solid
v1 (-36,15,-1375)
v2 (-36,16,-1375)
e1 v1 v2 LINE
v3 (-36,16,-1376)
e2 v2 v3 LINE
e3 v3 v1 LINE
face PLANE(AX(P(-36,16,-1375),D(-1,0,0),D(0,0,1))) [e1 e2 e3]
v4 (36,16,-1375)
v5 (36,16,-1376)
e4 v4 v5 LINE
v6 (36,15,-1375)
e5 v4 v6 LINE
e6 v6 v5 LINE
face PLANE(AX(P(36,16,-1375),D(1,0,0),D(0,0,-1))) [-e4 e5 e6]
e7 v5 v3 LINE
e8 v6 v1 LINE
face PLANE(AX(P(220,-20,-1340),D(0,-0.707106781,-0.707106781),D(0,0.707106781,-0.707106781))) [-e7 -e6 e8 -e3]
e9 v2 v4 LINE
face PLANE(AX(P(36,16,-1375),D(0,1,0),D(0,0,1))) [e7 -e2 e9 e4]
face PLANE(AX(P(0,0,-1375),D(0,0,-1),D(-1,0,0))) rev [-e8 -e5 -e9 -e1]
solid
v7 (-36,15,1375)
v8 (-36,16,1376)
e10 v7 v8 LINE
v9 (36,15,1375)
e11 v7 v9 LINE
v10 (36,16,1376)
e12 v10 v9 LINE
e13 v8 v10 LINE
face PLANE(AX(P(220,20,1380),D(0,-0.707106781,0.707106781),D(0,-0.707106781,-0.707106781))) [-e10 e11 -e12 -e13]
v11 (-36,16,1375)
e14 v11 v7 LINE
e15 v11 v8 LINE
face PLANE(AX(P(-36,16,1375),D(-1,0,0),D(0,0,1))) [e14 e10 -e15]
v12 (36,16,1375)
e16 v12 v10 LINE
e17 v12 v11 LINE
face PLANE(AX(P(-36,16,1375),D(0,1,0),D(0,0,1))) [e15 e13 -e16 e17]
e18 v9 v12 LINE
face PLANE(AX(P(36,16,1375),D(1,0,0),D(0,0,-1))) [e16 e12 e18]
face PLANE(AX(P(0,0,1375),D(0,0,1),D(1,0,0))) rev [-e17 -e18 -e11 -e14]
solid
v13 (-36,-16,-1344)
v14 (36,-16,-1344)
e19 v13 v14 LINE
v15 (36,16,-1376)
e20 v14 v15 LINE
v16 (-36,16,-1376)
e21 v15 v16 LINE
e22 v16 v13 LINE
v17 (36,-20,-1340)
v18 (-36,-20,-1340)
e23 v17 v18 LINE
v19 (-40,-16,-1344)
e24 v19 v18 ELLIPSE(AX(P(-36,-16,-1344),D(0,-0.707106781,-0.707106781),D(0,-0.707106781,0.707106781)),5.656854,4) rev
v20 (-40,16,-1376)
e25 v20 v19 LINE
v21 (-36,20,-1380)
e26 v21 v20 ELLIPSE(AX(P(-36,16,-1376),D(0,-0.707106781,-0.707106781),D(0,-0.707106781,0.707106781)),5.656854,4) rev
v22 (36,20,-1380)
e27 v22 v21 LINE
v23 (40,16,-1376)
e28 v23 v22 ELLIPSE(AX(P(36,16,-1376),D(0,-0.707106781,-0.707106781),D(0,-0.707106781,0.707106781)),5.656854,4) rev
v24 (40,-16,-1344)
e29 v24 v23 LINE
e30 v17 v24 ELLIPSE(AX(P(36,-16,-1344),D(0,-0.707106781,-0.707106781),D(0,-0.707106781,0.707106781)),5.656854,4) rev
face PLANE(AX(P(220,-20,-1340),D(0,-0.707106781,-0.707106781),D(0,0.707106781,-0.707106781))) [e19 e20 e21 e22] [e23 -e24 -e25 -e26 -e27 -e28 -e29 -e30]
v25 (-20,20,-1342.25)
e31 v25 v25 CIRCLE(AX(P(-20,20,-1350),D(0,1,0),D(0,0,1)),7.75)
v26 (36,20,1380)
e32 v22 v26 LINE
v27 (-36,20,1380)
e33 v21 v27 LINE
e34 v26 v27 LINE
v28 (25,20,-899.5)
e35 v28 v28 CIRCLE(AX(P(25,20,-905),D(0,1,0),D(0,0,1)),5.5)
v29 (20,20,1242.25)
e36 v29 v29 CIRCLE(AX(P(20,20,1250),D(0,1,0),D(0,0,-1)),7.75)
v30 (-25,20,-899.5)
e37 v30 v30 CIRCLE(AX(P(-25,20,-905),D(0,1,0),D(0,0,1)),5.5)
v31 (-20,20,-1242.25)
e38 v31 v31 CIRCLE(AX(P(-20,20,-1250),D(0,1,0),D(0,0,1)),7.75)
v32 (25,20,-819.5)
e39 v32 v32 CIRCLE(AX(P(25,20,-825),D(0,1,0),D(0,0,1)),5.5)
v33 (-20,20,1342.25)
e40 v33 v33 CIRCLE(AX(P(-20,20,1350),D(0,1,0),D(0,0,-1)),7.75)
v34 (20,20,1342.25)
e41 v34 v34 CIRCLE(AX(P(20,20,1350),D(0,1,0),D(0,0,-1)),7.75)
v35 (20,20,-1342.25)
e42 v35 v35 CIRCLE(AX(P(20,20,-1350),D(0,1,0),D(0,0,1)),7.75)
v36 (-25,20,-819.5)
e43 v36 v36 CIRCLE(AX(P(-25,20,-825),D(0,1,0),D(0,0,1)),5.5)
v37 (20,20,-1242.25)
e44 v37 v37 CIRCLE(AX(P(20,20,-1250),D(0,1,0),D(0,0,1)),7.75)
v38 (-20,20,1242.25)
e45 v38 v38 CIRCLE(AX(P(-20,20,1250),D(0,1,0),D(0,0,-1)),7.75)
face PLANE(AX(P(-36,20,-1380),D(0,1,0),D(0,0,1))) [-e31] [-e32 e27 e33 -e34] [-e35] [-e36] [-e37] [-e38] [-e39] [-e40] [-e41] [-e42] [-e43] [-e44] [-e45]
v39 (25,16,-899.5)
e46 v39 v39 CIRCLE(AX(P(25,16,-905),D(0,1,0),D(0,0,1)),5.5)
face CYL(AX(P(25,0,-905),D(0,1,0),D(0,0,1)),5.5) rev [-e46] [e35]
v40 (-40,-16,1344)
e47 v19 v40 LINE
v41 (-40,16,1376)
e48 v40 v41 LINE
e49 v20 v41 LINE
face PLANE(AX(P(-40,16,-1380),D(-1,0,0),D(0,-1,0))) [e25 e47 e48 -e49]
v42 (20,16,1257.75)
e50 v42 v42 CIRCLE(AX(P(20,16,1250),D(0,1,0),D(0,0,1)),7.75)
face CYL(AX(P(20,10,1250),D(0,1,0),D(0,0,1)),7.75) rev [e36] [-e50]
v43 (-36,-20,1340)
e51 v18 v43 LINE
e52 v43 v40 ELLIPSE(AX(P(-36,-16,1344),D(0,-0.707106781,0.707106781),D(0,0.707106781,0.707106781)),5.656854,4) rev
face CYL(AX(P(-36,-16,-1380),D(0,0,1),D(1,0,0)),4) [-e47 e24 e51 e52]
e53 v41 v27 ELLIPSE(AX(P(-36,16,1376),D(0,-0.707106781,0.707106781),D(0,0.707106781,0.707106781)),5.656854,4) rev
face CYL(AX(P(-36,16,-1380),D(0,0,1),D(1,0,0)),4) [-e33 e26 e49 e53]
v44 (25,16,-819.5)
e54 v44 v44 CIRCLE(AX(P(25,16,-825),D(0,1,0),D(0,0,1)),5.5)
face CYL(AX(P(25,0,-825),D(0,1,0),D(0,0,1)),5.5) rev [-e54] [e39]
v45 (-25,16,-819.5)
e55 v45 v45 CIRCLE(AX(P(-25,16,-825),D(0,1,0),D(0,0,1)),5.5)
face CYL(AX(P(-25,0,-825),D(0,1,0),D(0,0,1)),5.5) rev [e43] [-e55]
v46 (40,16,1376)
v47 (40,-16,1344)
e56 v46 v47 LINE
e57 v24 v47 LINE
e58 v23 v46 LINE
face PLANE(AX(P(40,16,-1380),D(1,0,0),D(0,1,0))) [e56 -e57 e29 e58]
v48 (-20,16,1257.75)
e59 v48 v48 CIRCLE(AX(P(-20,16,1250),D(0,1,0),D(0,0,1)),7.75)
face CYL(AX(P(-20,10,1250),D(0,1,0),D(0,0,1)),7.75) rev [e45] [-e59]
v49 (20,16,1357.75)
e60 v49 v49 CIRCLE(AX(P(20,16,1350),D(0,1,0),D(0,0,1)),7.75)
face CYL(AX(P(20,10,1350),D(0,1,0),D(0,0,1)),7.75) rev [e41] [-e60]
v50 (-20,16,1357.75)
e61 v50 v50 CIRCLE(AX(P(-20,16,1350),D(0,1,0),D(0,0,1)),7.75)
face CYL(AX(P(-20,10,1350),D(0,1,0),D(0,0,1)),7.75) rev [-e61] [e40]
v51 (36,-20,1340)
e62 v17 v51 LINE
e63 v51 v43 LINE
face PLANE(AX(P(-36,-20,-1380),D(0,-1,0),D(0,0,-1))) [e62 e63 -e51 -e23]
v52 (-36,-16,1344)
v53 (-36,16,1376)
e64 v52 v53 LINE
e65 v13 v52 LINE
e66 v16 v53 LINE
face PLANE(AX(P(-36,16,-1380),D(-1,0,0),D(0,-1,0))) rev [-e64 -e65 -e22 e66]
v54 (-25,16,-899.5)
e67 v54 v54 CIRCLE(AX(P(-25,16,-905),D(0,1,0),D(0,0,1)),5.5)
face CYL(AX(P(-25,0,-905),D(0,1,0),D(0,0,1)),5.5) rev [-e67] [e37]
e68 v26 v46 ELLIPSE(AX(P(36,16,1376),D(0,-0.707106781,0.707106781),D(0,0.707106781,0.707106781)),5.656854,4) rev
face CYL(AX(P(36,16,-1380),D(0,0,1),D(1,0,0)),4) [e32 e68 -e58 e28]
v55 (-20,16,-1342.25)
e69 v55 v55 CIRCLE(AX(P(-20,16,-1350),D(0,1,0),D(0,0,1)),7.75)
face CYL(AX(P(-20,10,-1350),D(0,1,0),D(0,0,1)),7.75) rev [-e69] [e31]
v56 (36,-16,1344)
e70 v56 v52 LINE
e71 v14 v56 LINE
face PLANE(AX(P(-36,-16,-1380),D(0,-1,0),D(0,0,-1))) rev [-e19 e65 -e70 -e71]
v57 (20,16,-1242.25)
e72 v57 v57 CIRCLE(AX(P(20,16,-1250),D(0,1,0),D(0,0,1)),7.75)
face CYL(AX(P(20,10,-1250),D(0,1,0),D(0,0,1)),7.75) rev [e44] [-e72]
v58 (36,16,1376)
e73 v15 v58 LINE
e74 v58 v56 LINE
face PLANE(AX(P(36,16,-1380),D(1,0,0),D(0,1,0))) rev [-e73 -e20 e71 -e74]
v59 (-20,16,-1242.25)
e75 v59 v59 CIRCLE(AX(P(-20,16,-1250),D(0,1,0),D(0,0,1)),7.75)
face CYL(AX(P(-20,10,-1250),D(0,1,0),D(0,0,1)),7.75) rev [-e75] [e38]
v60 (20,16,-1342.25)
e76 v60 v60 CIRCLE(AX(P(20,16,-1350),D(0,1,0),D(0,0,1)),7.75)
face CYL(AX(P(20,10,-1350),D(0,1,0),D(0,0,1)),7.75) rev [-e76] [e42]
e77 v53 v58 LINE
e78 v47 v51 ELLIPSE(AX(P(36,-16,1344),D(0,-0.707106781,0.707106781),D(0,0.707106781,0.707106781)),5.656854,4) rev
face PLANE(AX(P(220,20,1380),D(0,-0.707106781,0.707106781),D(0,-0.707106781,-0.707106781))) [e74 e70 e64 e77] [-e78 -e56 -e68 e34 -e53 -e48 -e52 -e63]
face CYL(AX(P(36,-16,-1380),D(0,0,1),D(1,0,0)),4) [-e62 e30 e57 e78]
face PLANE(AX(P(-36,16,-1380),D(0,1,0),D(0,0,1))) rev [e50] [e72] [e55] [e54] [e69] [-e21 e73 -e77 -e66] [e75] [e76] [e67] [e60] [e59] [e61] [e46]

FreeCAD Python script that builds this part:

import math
import FreeCAD as App
import Part
import Sketcher
Q = App.Units.Quantity


def add_polygon(sketch, points):
    """Adds a closed chain of lines whose ends are joined by coincident constraints."""
    first, n = sketch.GeometryCount, len(points)
    for a, b in zip(points, points[1:] + points[:1]):
        sketch.addGeometry(Part.LineSegment(App.Vector(*a, 0), App.Vector(*b, 0)), False)
    for i in range(n):
        sketch.addConstraint(Sketcher.Constraint("Coincident", first + i, 2, first + (i + 1) % n, 1))

doc = App.newDocument("Part")
params = doc.addObject("Spreadsheet::Sheet", "Params")
for row, (alias, value) in enumerate([
    ("sketch1_radius", "4 mm"),
    ("sketch1_width", "72 mm"),
    ("sketch1_height", "32 mm"),
    ("pad1_length", "1380 mm"),
    ("pad1_length2", "1380 mm"),
    ("sketch2_diameter", "15.5 mm"),
    ("pocket1_length", "10 mm"),
    ("sketch3_diameter", "11 mm"),
    ("pocket2_length", "20 mm"),
    ("sketch4_width", "72 mm"),
    ("sketch4_height", "32 mm"),
    ("pad2_length", "5 mm"),
    ("sketch5_width", "72 mm"),
    ("sketch5_height", "32 mm"),
    ("pad3_length", "5 mm"),
    ("sketch6_width", "40 mm"),
    ("pad4_length", "220 mm"),
    ("pad4_length2", "290 mm"),
], start=1):
    params.set(f"A{row}", alias)
    params.set(f"B{row}", "=" + value)
    params.setAlias(f"B{row}", alias)

body = doc.addObject("PartDesign::Body", "Body")

sketch1 = body.newObject("Sketcher::SketchObject", "Sketch")
sketch1.AttachmentSupport = (doc.getObject("XY_Plane"), [""])
sketch1.MapMode = "FlatFace"
sketch1.addGeometry(Part.LineSegment(App.Vector(36, 20, 0), App.Vector(-36, 20, 0)), False)
sketch1.addGeometry(Part.ArcOfCircle(Part.Circle(App.Vector(-36, 16, 0), App.Vector(0, 0, 1), 4), math.radians(90), math.radians(180)), False)
sketch1.addGeometry(Part.LineSegment(App.Vector(-40, 16, 0), App.Vector(-40, -16, 0)), False)
sketch1.addGeometry(Part.ArcOfCircle(Part.Circle(App.Vector(-36, -16, 0), App.Vector(0, 0, 1), 4), math.radians(180), math.radians(270)), False)
sketch1.addGeometry(Part.LineSegment(App.Vector(-36, -20, 0), App.Vector(36, -20, 0)), False)
sketch1.addGeometry(Part.ArcOfCircle(Part.Circle(App.Vector(36, -16, 0), App.Vector(0, 0, 1), 4), math.radians(-90), math.radians(0)), False)
sketch1.addGeometry(Part.LineSegment(App.Vector(40, -16, 0), App.Vector(40, 16, 0)), False)
sketch1.addGeometry(Part.ArcOfCircle(Part.Circle(App.Vector(36, 16, 0), App.Vector(0, 0, 1), 4), math.radians(0), math.radians(90)), False)
add_polygon(sketch1, [(-36, -16), (-36, 16), (36, 16), (36, -16)])
sketch1.addConstraint([
    Sketcher.Constraint("Tangent", 0, 2, 1, 1),
    Sketcher.Constraint("Tangent", 1, 2, 2, 1),
    Sketcher.Constraint("Tangent", 2, 2, 3, 1),
    Sketcher.Constraint("Tangent", 3, 2, 4, 1),
    Sketcher.Constraint("Tangent", 4, 2, 5, 1),
    Sketcher.Constraint("Tangent", 5, 2, 6, 1),
    Sketcher.Constraint("Tangent", 6, 2, 7, 1),
    Sketcher.Constraint("Tangent", 7, 2, 0, 1),
    Sketcher.Constraint("Horizontal", 0),
    Sketcher.Constraint("Vertical", 2),
    Sketcher.Constraint("Horizontal", 4),
    Sketcher.Constraint("Vertical", 6),
    Sketcher.Constraint("Vertical", 8),
    Sketcher.Constraint("Horizontal", 9),
    Sketcher.Constraint("Vertical", 10),
    Sketcher.Constraint("Horizontal", 11),
    Sketcher.Constraint("Coincident", 8, 2, 1, 3),
    Sketcher.Constraint("Coincident", 9, 2, 7, 3),
    Sketcher.Constraint("Coincident", 10, 2, 5, 3),
    Sketcher.Constraint("Equal", 1, 3),
    Sketcher.Constraint("Symmetric", 1, 3, 5, 3, -1, 1),
    Sketcher.Constraint("Radius", 1, Q("4 mm")),
    Sketcher.Constraint("DistanceX", 0, 2, 0, 1, Q("72 mm")),
    Sketcher.Constraint("DistanceY", 2, 2, 2, 1, Q("32 mm")),
])
sketch1.setExpression("Constraints[25]", "Params.sketch1_radius")
sketch1.setExpression("Constraints[26]", "Params.sketch1_width")
sketch1.setExpression("Constraints[27]", "Params.sketch1_height")
pad1 = body.newObject("PartDesign::Pad", "Pad")
pad1.Profile = sketch1
pad1.Type = "TwoLengths"
pad1.setExpression("Length", "Params.pad1_length")
pad1.setExpression("Length2", "Params.pad1_length2")

sketch2 = body.newObject("Sketcher::SketchObject", "Sketch001")
sketch2.AttachmentSupport = (doc.getObject("XZ_Plane"), [""])
sketch2.MapMode = "FlatFace"
sketch2.AttachmentOffset = App.Placement(App.Vector(0, 0, -20), App.Rotation())
sketch2.addGeometry([
    Part.Circle(App.Vector(-20, -1350, 0), App.Vector(0, 0, 1), 8),
    Part.Circle(App.Vector(20, -1350, 0), App.Vector(0, 0, 1), 8),
    Part.Circle(App.Vector(20, -1250, 0), App.Vector(0, 0, 1), 8),
    Part.Circle(App.Vector(-20, -1250, 0), App.Vector(0, 0, 1), 8),
    Part.Circle(App.Vector(-20, 1250, 0), App.Vector(0, 0, 1), 8),
    Part.Circle(App.Vector(20, 1250, 0), App.Vector(0, 0, 1), 8),
    Part.Circle(App.Vector(20, 1350, 0), App.Vector(0, 0, 1), 8),
    Part.Circle(App.Vector(-20, 1350, 0), App.Vector(0, 0, 1), 8),
], False)
sketch2.addConstraint([
    Sketcher.Constraint("Equal", 0, 1),
    Sketcher.Constraint("Equal", 1, 2),
    Sketcher.Constraint("Equal", 2, 3),
    Sketcher.Constraint("Equal", 3, 4),
    Sketcher.Constraint("Equal", 4, 5),
    Sketcher.Constraint("Equal", 5, 6),
    Sketcher.Constraint("Equal", 6, 7),
    Sketcher.Constraint("Symmetric", 2, 3, 4, 3, -1, 1),
    Sketcher.Constraint("Symmetric", 3, 3, 5, 3, -1, 1),
    Sketcher.Constraint("Symmetric", 0, 3, 6, 3, -1, 1),
    Sketcher.Constraint("Symmetric", 1, 3, 7, 3, -1, 1),
    Sketcher.Constraint("Symmetric", 0, 3, 1, 3, -2),
    Sketcher.Constraint("Symmetric", 2, 3, 3, 3, -2),
    Sketcher.Constraint("Vertical", 1, 3, 2, 3),
    Sketcher.Constraint("Diameter", 0, Q("15.5 mm")),
    Sketcher.Constraint("DistanceX", 0, 3, -1, 1, Q("20 mm")),
    Sketcher.Constraint("DistanceY", 0, 3, -1, 1, Q("1350 mm")),
    Sketcher.Constraint("DistanceY", 2, 3, -1, 1, Q("1250 mm")),
])
sketch2.setExpression("Constraints[14]", "Params.sketch2_diameter")
pocket1 = body.newObject("PartDesign::Pocket", "Pocket")
pocket1.Profile = sketch2
pocket1.setExpression("Length", "Params.pocket1_length")
pocket1.Reversed = True

sketch3 = body.newObject("Sketcher::SketchObject", "Sketch002")
sketch3.AttachmentSupport = (doc.getObject("XZ_Plane"), [""])
sketch3.MapMode = "FlatFace"
sketch3.AttachmentOffset = App.Placement(App.Vector(0, 0, -20), App.Rotation())
sketch3.addGeometry([
    Part.Circle(App.Vector(25, -905, 0), App.Vector(0, 0, 1), 6),
    Part.Circle(App.Vector(-25, -905, 0), App.Vector(0, 0, 1), 6),
    Part.Circle(App.Vector(25, -825, 0), App.Vector(0, 0, 1), 6),
    Part.Circle(App.Vector(-25, -825, 0), App.Vector(0, 0, 1), 6),
], False)
sketch3.addConstraint([
    Sketcher.Constraint("Equal", 0, 1),
    Sketcher.Constraint("Equal", 1, 2),
    Sketcher.Constraint("Equal", 2, 3),
    Sketcher.Constraint("Symmetric", 0, 3, 1, 3, -2),
    Sketcher.Constraint("Symmetric", 2, 3, 3, 3, -2),
    Sketcher.Constraint("Vertical", 0, 3, 2, 3),
    Sketcher.Constraint("Diameter", 0, Q("11 mm")),
    Sketcher.Constraint("DistanceX", -1, 1, 0, 3, Q("25 mm")),
    Sketcher.Constraint("DistanceY", 0, 3, -1, 1, Q("905 mm")),
    Sketcher.Constraint("DistanceY", 2, 3, -1, 1, Q("825 mm")),
])
sketch3.setExpression("Constraints[6]", "Params.sketch3_diameter")
pocket2 = body.newObject("PartDesign::Pocket", "Pocket001")
pocket2.Profile = sketch3
pocket2.setExpression("Length", "Params.pocket2_length")
pocket2.Reversed = True
body2 = doc.addObject("PartDesign::Body", "Body001")

sketch4 = body2.newObject("Sketcher::SketchObject", "Sketch003")
sketch4.AttachmentSupport = (doc.getObject("XY_Plane001"), [""])
sketch4.MapMode = "FlatFace"
sketch4.AttachmentOffset = App.Placement(App.Vector(0, 0, -1380), App.Rotation())
add_polygon(sketch4, [(36, 16), (36, -16), (-36, -16), (-36, 16)])
sketch4.addConstraint([
    Sketcher.Constraint("Vertical", 0),
    Sketcher.Constraint("Horizontal", 1),
    Sketcher.Constraint("Vertical", 2),
    Sketcher.Constraint("Horizontal", 3),
    Sketcher.Constraint("Symmetric", 0, 2, 2, 2, -1, 1),
    Sketcher.Constraint("DistanceX", 1, 2, 1, 1, Q("72 mm")),
    Sketcher.Constraint("DistanceY", 0, 2, 0, 1, Q("32 mm")),
])
sketch4.setExpression("Constraints[9]", "Params.sketch4_width")
sketch4.setExpression("Constraints[10]", "Params.sketch4_height")
pad2 = body2.newObject("PartDesign::Pad", "Pad001")
pad2.Profile = sketch4
pad2.setExpression("Length", "Params.pad2_length")
body3 = doc.addObject("PartDesign::Body", "Body002")

sketch5 = body3.newObject("Sketcher::SketchObject", "Sketch004")
sketch5.AttachmentSupport = (doc.getObject("XY_Plane002"), [""])
sketch5.MapMode = "FlatFace"
sketch5.AttachmentOffset = App.Placement(App.Vector(0, 0, 1380), App.Rotation())
add_polygon(sketch5, [(-36, 16), (-36, -16), (36, -16), (36, 16)])
sketch5.addConstraint([
    Sketcher.Constraint("Vertical", 0),
    Sketcher.Constraint("Horizontal", 1),
    Sketcher.Constraint("Vertical", 2),
    Sketcher.Constraint("Horizontal", 3),
    Sketcher.Constraint("Symmetric", 0, 2, 2, 2, -1, 1),
    Sketcher.Constraint("DistanceX", 1, 1, 1, 2, Q("72 mm")),
    Sketcher.Constraint("DistanceY", 0, 2, 0, 1, Q("32 mm")),
])
sketch5.setExpression("Constraints[9]", "Params.sketch5_width")
sketch5.setExpression("Constraints[10]", "Params.sketch5_height")
pad3 = body3.newObject("PartDesign::Pad", "Pad002")
pad3.Profile = sketch5
pad3.setExpression("Length", "Params.pad3_length")
pad3.Reversed = True
body4 = doc.addObject("PartDesign::Body", "Body003")
body4.AllowCompound = True

sketch6 = body4.newObject("Sketcher::SketchObject", "Sketch005")
sketch6.AttachmentSupport = (doc.getObject("YZ_Plane003"), [""])
sketch6.MapMode = "FlatFace"
add_polygon(sketch6, [(20, 1380), (-20, 1380), (-20, 1340)])
add_polygon(sketch6, [(-20, -1340), (-20, -1380), (20, -1380)])
sketch6.addConstraint([
    Sketcher.Constraint("Horizontal", 0),
    Sketcher.Constraint("Vertical", 1),
    Sketcher.Constraint("Vertical", 3),
    Sketcher.Constraint("Horizontal", 4),
    Sketcher.Constraint("Symmetric", 2, 2, 3, 2, -1, 1),
    Sketcher.Constraint("Symmetric", 1, 2, 5, 2, -1),
    Sketcher.Constraint("Perpendicular", 2, 5),
    Sketcher.Constraint("Vertical", 2, 2, 4, 2),
    Sketcher.Constraint("DistanceX", 0, 2, 0, 1, Q("40 mm")),
    Sketcher.Constraint("DistanceY", -1, 1, 0, 2, Q("1380 mm")),
])
sketch6.setExpression("Constraints[14]", "Params.sketch6_width")
pad4 = body4.newObject("PartDesign::Pad", "Pad003")
pad4.Profile = sketch6
pad4.Type = "TwoLengths"
pad4.setExpression("Length", "Params.pad4_length")
pad4.setExpression("Length2", "Params.pad4_length2")
doc.recompute()

body5 = doc.addObject("PartDesign::Body", "Body004")
body5.BaseFeature = body4
boolean = body.newObject("PartDesign::Boolean", "Boolean")
boolean.Type = "Cut"
boolean.addObjects([body5])
doc.recompute()

body6 = doc.addObject("PartDesign::Body", "Body005")
body6.BaseFeature = body4
boolean2 = body2.newObject("PartDesign::Boolean", "Boolean001")
boolean2.Type = "Cut"
boolean2.addObjects([body6])
doc.recompute()

boolean3 = body3.newObject("PartDesign::Boolean", "Boolean002")
boolean3.Type = "Cut"
boolean3.addObjects([body4])

doc.recompute()
